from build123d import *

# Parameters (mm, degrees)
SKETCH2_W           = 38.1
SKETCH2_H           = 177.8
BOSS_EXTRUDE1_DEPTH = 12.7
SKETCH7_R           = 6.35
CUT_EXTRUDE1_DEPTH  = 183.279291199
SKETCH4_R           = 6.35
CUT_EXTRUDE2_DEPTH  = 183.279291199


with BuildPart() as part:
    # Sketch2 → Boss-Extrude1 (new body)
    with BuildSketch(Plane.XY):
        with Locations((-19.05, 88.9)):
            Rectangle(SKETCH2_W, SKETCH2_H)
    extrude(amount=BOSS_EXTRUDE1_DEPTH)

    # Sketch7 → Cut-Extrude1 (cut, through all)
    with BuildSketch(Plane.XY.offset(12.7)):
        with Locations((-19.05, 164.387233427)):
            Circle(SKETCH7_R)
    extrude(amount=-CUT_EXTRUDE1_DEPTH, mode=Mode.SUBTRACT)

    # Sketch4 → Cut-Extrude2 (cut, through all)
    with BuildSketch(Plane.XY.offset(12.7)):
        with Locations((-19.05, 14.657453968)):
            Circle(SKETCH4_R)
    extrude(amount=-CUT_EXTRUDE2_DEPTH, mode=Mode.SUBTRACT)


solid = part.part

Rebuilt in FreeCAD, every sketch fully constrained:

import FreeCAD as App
import Part
import Sketcher
from FreeCAD import Vector
Q = App.Units.Quantity

doc = App.newDocument("Part")
body = doc.addObject("PartDesign::Body", "Body")

sketch1 = body.newObject("Sketcher::SketchObject", "Sketch")
sketch1.AttachmentSupport = (doc.getObject("XY_Plane"), [""])
sketch1.MapMode = "FlatFace"
sketch1.addGeometry([
    Part.LineSegment(Vector(-38, 178, 0), Vector(-38, 0, 0)),
    Part.LineSegment(Vector(-38, 0, 0), Vector(0, 0, 0)),
    Part.LineSegment(Vector(0, 0, 0), Vector(0, 178, 0)),
    Part.LineSegment(Vector(0, 178, 0), Vector(-38, 178, 0)),
], False)
sketch1.addConstraint([
    Sketcher.Constraint("Coincident", 0, 2, 1, 1),
    Sketcher.Constraint("Coincident", 1, 2, 2, 1),
    Sketcher.Constraint("Coincident", 2, 2, 3, 1),
    Sketcher.Constraint("Coincident", 3, 2, 0, 1),
    Sketcher.Constraint("Vertical", 0),
    Sketcher.Constraint("Horizontal", 1),
    Sketcher.Constraint("Vertical", 2),
    Sketcher.Constraint("Horizontal", 3),
    Sketcher.Constraint("Coincident", 1, 2, -1, 1),
    Sketcher.Constraint("DistanceY", 0, 2, 0, 1, Q("7 in")),
    Sketcher.Constraint("DistanceX", 1, 1, 1, 2, Q("1.5 in")),
])
pad1 = body.newObject("PartDesign::Pad", "Pad")
pad1.Profile = sketch1
pad1.Length = Q("0.5 in")

sketch2 = body.newObject("Sketcher::SketchObject", "Sketch001")
sketch2.AttachmentSupport = (doc.getObject("XY_Plane"), [""])
sketch2.MapMode = "FlatFace"
sketch2.AttachmentOffset = App.Placement(Vector(0, 0, 0.5 * 25.4), App.Rotation())
sketch2.addGeometry(Part.Circle(Vector(-19, 164, 0), Vector(0, 0, 1), 6), False)
sketch2.addConstraint([
    Sketcher.Constraint("Diameter", 0, Q("0.5 in")),
    Sketcher.Constraint("DistanceX", 0, 3, -1, 1, Q("0.75 in")),
    Sketcher.Constraint("DistanceY", -1, 1, 0, 3, 164.387233),
])
pocket1 = body.newObject("PartDesign::Pocket", "Pocket")
pocket1.Profile = sketch2
pocket1.Type = "ThroughAll"

sketch3 = body.newObject("Sketcher::SketchObject", "Sketch002")
sketch3.AttachmentSupport = (doc.getObject("XY_Plane"), [""])
sketch3.MapMode = "FlatFace"
sketch3.AttachmentOffset = App.Placement(Vector(0, 0, 0.5 * 25.4), App.Rotation())
sketch3.addGeometry(Part.Circle(Vector(-19, 15, 0), Vector(0, 0, 1), 6), False)
sketch3.addConstraint([
    Sketcher.Constraint("Diameter", 0, Q("0.5 in")),
    Sketcher.Constraint("DistanceX", 0, 3, -1, 1, Q("0.75 in")),
    Sketcher.Constraint("DistanceY", -1, 1, 0, 3, 14.657454),
])
pocket2 = body.newObject("PartDesign::Pocket", "Pocket001")
pocket2.Profile = sketch3
pocket2.Type = "ThroughAll"

doc.recompute()
